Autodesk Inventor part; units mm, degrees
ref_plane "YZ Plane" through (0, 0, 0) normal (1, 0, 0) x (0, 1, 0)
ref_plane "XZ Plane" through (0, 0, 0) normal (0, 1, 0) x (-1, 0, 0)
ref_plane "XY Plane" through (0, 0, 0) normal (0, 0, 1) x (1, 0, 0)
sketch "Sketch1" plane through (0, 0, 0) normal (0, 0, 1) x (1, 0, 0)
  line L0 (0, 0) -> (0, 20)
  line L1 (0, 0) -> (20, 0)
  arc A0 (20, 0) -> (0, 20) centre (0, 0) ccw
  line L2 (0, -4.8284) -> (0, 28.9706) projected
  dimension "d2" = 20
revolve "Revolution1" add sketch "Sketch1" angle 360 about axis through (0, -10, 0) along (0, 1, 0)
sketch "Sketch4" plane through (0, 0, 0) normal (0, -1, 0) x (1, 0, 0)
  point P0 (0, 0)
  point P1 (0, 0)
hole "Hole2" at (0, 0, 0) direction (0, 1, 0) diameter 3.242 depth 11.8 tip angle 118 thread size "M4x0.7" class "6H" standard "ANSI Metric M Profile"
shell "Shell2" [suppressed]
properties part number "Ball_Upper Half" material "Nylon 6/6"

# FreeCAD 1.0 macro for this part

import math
import FreeCAD as App
import Part
import Sketcher
Q = App.Units.Quantity

doc = App.newDocument("Part")
body = doc.addObject("PartDesign::Body", "Body")

# Sketch on XY plane
sketch1 = doc.addObject("Sketcher::SketchObject", "Sketch")
body.addObject(sketch1)
sketch1.AttachmentSupport = (doc.XY_Plane, [""])
sketch1.MapMode = "FlatFace"
sketch1.addGeometry(Part.LineSegment(App.Vector(0, 20, 0), App.Vector(0, 0, 0)), False)
sketch1.addGeometry(Part.LineSegment(App.Vector(0, 0, 0), App.Vector(20, 0, 0)), False)
sketch1.addGeometry(Part.ArcOfCircle(Part.Circle(App.Vector(0, 0, 0), App.Vector(0, 0, 1), 20), math.radians(0), math.radians(90)), False)
sketch1.addConstraint(Sketcher.Constraint("Coincident", 0, 2, 1, 1))
sketch1.addConstraint(Sketcher.Constraint("Coincident", 1, 2, 2, 1))
sketch1.addConstraint(Sketcher.Constraint("Coincident", 2, 2, 0, 1))
sketch1.addConstraint(Sketcher.Constraint("Vertical", 0))
sketch1.addConstraint(Sketcher.Constraint("Horizontal", 1))
sketch1.addConstraint(Sketcher.Constraint("Coincident", 2, 3, -1, 1))
sketch1.addConstraint(Sketcher.Constraint("Coincident", 0, 2, -1, 1))
sketch1.addConstraint(Sketcher.Constraint("Radius", 2, Q("20 mm")))
revolution = doc.addObject("PartDesign::Revolution", "Revolution")
body.addObject(revolution)
revolution.Profile = sketch1
revolution.ReferenceAxis = (sketch1, ["V_Axis"])
revolution.Angle = 360

# Sketch on XZ plane
sketch2 = doc.addObject("Sketcher::SketchObject", "Sketch001")
body.addObject(sketch2)
sketch2.AttachmentSupport = (doc.XZ_Plane, [""])
sketch2.MapMode = "FlatFace"
sketch2.addGeometry(Part.Circle(App.Vector(0, 0, 0), App.Vector(0, 0, 1), 1.6), False)
sketch2.addConstraint(Sketcher.Constraint("Coincident", 0, 3, -1, 1))
sketch2.addConstraint(Sketcher.Constraint("Diameter", 0, Q("3.242 mm")))
doc.recompute()
hole = doc.addObject("PartDesign::Hole", "Hole")
body.addObject(hole)
hole.Profile = sketch2
hole.ThreadType = "None"
hole.Diameter = 3.242
hole.DepthType = "Dimension"
hole.Depth = 11.8
hole.DrillPoint = "Angled"
hole.DrillPointAngle = 118

doc.recompute()
